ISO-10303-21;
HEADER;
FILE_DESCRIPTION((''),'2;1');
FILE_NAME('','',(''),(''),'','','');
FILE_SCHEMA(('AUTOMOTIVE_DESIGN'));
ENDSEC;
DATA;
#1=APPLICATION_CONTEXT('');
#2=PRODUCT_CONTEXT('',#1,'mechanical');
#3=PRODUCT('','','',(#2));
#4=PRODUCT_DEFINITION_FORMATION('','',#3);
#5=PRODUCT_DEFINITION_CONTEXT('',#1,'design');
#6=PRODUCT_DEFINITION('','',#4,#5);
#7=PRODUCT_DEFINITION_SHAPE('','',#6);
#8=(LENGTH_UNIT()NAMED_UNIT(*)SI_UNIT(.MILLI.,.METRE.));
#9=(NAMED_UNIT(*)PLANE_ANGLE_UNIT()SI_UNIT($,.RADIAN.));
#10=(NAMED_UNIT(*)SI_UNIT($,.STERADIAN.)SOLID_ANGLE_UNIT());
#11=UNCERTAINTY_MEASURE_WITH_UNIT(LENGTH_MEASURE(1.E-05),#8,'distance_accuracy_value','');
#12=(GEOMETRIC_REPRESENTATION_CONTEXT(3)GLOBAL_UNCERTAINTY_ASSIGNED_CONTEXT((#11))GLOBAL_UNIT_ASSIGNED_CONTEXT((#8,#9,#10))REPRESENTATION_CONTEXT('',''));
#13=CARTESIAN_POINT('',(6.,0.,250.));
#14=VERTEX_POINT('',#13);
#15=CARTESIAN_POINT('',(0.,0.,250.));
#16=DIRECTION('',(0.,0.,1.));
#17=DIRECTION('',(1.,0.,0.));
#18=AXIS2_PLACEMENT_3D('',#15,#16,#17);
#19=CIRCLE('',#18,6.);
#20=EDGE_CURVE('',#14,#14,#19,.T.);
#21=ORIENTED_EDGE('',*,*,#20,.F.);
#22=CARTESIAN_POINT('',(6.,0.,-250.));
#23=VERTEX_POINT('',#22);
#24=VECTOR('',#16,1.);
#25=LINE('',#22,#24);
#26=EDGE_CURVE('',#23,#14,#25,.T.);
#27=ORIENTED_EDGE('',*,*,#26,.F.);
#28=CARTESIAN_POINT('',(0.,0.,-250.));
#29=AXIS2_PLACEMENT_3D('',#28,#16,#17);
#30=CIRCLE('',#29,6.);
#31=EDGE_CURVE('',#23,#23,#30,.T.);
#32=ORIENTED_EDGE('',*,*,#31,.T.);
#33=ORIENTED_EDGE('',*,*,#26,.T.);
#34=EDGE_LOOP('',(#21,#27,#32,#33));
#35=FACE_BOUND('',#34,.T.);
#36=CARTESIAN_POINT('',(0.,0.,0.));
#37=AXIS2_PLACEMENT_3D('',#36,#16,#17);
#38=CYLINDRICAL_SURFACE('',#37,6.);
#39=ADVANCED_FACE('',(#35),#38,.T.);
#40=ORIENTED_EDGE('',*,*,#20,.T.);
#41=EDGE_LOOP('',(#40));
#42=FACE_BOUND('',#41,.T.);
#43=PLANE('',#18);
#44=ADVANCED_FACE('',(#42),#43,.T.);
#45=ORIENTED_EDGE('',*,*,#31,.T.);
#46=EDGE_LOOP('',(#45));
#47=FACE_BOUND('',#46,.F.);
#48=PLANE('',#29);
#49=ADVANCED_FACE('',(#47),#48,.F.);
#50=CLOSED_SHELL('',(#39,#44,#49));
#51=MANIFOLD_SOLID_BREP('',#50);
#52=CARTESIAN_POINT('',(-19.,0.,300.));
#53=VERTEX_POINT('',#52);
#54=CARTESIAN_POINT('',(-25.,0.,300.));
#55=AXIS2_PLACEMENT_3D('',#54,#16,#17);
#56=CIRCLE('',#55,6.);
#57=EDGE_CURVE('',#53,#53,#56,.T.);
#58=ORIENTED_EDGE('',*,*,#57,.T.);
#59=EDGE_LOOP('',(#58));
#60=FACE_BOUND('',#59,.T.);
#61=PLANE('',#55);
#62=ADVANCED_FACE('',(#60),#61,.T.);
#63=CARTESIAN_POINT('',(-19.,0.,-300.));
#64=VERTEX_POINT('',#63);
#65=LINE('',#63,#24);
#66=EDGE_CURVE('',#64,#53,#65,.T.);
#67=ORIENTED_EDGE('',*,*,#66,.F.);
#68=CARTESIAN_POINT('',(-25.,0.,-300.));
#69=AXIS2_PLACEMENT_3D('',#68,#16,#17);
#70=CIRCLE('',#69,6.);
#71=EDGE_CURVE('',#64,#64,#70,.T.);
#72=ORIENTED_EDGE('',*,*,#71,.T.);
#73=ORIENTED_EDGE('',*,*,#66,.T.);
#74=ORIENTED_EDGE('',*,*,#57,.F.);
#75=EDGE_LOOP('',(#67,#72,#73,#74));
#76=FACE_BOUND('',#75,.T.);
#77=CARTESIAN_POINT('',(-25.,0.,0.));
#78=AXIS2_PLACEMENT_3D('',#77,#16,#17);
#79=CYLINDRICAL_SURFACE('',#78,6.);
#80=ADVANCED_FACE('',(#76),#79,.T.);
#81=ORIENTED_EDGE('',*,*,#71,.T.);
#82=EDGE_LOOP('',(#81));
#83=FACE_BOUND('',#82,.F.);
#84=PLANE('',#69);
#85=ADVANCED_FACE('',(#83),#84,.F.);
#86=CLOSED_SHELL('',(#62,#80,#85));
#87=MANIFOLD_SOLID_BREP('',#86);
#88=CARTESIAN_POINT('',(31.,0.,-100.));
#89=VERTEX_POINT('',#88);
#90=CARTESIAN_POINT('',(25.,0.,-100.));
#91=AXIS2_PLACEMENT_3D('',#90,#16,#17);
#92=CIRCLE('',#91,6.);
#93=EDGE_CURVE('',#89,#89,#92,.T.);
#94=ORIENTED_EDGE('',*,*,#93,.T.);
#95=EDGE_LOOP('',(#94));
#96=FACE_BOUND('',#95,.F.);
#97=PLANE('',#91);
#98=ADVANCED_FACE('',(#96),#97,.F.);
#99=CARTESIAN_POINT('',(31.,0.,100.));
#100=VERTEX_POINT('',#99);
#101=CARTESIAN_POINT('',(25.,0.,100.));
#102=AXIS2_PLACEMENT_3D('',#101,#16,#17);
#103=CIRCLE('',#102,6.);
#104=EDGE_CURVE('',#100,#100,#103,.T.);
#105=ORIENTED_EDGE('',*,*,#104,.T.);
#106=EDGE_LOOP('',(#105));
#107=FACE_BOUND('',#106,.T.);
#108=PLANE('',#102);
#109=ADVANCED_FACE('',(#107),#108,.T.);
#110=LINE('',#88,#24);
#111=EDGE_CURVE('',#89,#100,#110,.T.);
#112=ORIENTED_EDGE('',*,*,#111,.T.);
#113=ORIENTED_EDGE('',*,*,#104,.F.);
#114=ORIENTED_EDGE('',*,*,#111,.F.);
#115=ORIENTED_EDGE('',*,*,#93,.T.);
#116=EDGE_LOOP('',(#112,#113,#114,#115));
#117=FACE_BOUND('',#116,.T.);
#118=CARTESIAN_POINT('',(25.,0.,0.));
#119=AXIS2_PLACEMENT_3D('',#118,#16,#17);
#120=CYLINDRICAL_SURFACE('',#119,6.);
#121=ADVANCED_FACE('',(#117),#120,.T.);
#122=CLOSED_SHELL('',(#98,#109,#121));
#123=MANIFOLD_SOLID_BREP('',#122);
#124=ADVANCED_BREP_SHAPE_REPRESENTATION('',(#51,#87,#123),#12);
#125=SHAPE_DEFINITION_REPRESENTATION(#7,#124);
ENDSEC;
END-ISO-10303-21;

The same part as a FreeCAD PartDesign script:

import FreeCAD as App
import Part
import Sketcher
Q = App.Units.Quantity

doc = App.newDocument("Part")
params = doc.addObject("Spreadsheet::Sheet", "Params")
for row, (alias, value) in enumerate([
    ("sketch1_diameter", "12 mm"),
    ("pad1_length", "600 mm"),
    ("sketch2_diameter", "12 mm"),
    ("pad2_length", "500 mm"),
    ("sketch3_diameter", "12 mm"),
    ("pad3_length", "200 mm"),
], start=1):
    params.set(f"A{row}", alias)
    params.set(f"B{row}", "=" + value)
    params.setAlias(f"B{row}", alias)

body = doc.addObject("PartDesign::Body", "Body")

# Sketch on XY plane
sketch1 = doc.addObject("Sketcher::SketchObject", "Sketch")
body.addObject(sketch1)
sketch1.AttachmentSupport = (doc.XY_Plane, [""])
sketch1.MapMode = "FlatFace"
sketch1.addGeometry(Part.Circle(App.Vector(-25, 0, 0), App.Vector(0, 0, 1), 6), False)
sketch1.addConstraint([
    Sketcher.Constraint("PointOnObject", 0, 3, -1),
    Sketcher.Constraint("Diameter", 0, Q("12 mm")),
    Sketcher.Constraint("DistanceX", 0, 3, -1, 1, Q("25 mm")),
])
sketch1.setExpression("Constraints[1]", "Params.sketch1_diameter")
pad1 = doc.addObject("PartDesign::Pad", "Pad")
body.addObject(pad1)
pad1.Profile = sketch1
pad1.setExpression("Length", "Params.pad1_length")
pad1.Midplane = True
body2 = doc.addObject("PartDesign::Body", "Body001")

# Sketch on XY plane
sketch2 = doc.addObject("Sketcher::SketchObject", "Sketch001")
body2.addObject(sketch2)
sketch2.AttachmentSupport = (doc.getObject("XY_Plane001"), [""])
sketch2.MapMode = "FlatFace"
sketch2.addGeometry(Part.Circle(App.Vector(0, 0, 0), App.Vector(0, 0, 1), 6), False)
sketch2.addConstraint([
    Sketcher.Constraint("Coincident", 0, 3, -1, 1),
    Sketcher.Constraint("Diameter", 0, Q("12 mm")),
])
sketch2.setExpression("Constraints[1]", "Params.sketch2_diameter")
pad2 = doc.addObject("PartDesign::Pad", "Pad001")
body2.addObject(pad2)
pad2.Profile = sketch2
pad2.setExpression("Length", "Params.pad2_length")
pad2.Midplane = True
body3 = doc.addObject("PartDesign::Body", "Body002")

# Sketch on XY plane
sketch3 = doc.addObject("Sketcher::SketchObject", "Sketch002")
body3.addObject(sketch3)
sketch3.AttachmentSupport = (doc.getObject("XY_Plane002"), [""])
sketch3.MapMode = "FlatFace"
sketch3.addGeometry(Part.Circle(App.Vector(25, 0, 0), App.Vector(0, 0, 1), 6), False)
sketch3.addConstraint([
    Sketcher.Constraint("PointOnObject", 0, 3, -1),
    Sketcher.Constraint("Diameter", 0, Q("12 mm")),
    Sketcher.Constraint("DistanceX", -1, 1, 0, 3, Q("25 mm")),
])
sketch3.setExpression("Constraints[1]", "Params.sketch3_diameter")
pad3 = doc.addObject("PartDesign::Pad", "Pad002")
body3.addObject(pad3)
pad3.Profile = sketch3
pad3.setExpression("Length", "Params.pad3_length")
pad3.Midplane = True

doc.recompute()
